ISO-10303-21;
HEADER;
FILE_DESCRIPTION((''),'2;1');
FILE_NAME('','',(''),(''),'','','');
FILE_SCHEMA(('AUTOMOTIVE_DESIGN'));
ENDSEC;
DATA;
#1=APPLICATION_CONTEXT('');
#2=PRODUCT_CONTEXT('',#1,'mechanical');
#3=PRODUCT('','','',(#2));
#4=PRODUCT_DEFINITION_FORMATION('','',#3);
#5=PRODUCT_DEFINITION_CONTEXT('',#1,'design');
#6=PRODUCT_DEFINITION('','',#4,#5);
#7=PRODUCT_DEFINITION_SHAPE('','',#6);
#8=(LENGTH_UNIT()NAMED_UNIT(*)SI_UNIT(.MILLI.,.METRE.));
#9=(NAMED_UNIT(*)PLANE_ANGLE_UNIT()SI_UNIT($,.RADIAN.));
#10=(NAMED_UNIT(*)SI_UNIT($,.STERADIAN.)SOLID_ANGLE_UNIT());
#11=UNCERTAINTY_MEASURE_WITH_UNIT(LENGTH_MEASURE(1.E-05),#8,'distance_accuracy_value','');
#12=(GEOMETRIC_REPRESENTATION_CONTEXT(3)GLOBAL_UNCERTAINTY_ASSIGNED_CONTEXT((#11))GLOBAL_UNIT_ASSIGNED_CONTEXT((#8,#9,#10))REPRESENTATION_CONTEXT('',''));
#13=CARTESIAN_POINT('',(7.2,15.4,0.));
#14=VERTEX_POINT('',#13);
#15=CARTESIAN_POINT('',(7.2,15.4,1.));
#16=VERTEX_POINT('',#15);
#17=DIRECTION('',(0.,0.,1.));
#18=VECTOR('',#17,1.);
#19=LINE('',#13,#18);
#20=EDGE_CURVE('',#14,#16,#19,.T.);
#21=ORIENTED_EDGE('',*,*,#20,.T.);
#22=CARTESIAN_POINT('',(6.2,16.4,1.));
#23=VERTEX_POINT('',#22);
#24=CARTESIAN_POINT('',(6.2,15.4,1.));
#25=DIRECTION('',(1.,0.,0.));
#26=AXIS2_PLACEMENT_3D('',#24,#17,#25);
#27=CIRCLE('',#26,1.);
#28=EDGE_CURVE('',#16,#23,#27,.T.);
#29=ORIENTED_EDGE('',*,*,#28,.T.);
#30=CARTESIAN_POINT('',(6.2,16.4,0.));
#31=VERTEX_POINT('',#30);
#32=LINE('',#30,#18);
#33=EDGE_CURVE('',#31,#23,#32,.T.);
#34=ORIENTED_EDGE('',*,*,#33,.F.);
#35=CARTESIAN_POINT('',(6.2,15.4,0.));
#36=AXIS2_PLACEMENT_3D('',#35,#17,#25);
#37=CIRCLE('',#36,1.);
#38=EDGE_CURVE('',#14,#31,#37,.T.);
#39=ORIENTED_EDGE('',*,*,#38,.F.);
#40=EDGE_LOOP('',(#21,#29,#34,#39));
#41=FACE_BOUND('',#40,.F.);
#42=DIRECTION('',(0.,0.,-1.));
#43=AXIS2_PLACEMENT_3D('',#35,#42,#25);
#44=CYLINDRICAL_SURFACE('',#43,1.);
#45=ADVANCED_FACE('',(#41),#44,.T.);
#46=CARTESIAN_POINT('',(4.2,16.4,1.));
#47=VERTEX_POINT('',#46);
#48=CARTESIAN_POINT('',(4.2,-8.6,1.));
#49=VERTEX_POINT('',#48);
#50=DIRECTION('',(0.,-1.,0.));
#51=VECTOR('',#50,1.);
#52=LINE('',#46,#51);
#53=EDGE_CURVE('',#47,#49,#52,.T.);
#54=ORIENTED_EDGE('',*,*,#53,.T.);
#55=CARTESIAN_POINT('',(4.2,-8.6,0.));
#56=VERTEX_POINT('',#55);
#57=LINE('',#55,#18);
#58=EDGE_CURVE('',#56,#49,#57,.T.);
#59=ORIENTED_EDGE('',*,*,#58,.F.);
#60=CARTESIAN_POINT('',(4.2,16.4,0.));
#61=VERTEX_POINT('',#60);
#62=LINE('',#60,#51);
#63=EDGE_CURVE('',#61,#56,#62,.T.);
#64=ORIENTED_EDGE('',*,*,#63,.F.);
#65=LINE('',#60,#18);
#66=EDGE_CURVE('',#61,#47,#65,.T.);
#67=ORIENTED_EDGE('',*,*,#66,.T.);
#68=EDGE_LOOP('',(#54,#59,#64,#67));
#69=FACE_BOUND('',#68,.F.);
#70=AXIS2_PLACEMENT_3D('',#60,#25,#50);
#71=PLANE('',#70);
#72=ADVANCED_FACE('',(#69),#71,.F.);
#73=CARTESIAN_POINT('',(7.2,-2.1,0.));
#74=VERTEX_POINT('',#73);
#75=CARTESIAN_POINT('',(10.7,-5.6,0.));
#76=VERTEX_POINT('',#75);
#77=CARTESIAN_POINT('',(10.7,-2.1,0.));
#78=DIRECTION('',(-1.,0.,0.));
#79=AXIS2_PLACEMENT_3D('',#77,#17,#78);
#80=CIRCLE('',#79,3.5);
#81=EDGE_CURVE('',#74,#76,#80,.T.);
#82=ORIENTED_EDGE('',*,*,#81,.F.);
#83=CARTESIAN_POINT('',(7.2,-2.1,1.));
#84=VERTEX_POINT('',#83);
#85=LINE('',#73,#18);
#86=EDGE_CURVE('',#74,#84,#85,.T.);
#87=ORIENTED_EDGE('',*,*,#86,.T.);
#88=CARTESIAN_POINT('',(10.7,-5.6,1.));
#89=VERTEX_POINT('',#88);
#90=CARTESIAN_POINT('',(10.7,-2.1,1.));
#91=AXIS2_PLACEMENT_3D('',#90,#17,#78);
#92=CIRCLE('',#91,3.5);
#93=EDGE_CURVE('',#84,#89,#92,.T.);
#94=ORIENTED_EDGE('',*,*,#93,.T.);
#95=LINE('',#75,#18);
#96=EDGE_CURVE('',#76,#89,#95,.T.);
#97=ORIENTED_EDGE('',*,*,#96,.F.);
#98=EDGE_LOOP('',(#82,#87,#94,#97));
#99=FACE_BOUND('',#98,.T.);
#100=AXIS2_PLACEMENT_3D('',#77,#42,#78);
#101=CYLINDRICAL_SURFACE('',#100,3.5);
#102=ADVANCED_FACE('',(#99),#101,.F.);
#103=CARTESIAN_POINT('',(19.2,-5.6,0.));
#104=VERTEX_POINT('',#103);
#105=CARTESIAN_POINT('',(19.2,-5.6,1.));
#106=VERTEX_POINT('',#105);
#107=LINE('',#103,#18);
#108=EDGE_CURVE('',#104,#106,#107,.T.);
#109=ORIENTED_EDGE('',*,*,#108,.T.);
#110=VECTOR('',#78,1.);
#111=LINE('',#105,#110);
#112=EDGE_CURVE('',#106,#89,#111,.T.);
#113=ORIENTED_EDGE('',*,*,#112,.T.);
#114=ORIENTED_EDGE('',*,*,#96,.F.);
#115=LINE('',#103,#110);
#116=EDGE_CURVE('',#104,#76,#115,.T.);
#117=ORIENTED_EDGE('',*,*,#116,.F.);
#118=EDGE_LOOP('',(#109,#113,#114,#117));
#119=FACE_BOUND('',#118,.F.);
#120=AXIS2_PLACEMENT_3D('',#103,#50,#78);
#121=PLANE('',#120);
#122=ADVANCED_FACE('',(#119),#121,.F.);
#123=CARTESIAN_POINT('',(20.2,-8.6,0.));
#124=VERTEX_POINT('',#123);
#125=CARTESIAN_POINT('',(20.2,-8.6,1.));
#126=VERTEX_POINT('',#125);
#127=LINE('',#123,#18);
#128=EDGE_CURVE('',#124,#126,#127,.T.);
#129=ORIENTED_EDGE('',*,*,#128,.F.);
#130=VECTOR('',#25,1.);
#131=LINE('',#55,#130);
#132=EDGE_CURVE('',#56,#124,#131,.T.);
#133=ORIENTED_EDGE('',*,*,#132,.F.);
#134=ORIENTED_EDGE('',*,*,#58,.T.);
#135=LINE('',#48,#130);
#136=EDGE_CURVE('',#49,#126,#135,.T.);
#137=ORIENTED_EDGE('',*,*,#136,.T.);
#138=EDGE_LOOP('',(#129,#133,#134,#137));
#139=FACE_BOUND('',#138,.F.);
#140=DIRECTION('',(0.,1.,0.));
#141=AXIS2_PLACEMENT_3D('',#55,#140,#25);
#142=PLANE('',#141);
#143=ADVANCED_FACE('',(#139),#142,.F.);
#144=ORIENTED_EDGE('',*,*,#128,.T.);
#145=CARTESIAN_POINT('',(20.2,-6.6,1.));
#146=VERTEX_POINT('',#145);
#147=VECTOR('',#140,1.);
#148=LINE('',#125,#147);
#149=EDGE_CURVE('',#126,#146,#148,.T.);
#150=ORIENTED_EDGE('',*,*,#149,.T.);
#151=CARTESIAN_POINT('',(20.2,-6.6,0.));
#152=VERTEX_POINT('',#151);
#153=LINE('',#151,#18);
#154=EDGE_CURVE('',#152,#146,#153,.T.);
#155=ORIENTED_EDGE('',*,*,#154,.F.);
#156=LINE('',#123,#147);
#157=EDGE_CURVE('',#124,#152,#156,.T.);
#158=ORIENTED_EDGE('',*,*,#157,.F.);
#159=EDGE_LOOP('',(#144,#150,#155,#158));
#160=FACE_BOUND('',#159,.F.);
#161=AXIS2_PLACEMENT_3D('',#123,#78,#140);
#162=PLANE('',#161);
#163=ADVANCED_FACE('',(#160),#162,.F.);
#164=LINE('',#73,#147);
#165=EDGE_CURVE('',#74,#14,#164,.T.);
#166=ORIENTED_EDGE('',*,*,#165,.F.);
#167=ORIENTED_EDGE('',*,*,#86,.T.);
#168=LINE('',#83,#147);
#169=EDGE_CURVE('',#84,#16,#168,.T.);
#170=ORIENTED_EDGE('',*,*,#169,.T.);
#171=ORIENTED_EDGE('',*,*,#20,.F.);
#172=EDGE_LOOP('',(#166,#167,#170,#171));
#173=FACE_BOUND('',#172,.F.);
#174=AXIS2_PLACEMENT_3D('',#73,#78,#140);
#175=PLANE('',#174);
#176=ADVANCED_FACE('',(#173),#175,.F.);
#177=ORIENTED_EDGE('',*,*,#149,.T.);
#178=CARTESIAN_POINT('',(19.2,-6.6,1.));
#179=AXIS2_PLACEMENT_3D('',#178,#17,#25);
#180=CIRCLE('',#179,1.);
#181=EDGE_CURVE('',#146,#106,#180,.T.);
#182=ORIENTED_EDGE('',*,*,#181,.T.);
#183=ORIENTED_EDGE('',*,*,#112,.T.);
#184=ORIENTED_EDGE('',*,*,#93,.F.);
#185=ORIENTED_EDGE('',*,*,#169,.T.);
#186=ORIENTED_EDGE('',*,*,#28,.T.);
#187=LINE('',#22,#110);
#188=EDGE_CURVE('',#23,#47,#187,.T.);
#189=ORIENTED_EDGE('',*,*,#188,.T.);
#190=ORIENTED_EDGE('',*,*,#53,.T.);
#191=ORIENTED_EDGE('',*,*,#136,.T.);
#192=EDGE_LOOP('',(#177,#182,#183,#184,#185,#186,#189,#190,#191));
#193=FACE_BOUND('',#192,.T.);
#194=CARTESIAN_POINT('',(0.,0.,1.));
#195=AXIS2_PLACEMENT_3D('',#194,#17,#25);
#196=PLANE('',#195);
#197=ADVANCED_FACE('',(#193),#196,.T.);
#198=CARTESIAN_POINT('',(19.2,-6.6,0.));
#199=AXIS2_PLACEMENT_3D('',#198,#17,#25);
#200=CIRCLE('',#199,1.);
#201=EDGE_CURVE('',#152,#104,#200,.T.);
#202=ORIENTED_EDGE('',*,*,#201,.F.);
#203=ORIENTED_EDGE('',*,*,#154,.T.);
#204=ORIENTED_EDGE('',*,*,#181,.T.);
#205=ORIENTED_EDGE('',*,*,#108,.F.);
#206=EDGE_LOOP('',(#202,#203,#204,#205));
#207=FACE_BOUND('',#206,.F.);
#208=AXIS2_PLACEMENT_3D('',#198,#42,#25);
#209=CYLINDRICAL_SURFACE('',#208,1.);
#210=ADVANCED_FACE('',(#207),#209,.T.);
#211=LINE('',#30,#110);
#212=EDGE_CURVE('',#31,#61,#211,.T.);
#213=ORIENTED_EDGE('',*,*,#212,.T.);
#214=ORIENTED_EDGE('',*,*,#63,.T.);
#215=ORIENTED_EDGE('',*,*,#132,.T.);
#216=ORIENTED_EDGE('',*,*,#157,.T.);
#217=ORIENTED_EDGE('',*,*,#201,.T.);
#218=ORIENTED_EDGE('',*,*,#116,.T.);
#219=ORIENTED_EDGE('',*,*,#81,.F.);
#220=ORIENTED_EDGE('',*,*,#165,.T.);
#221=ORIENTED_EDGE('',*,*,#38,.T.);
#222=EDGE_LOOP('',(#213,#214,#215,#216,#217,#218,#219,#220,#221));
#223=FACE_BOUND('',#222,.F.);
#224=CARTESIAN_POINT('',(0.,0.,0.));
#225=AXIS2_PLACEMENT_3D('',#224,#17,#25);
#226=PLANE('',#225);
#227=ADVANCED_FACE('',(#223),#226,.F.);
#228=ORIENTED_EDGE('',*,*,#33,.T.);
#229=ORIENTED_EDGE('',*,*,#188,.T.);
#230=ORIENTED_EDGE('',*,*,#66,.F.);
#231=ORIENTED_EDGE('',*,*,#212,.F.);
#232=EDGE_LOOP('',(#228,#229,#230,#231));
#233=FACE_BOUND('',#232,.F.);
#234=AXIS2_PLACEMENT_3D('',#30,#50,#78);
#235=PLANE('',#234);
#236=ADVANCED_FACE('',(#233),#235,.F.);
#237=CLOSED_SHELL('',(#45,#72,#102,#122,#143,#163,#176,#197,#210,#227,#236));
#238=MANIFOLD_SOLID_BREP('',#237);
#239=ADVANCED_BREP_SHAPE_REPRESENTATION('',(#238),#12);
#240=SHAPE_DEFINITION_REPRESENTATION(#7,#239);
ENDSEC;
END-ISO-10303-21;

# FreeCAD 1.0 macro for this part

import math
import FreeCAD as App
import Part
import Sketcher

doc = App.newDocument("Part")
body = doc.addObject("PartDesign::Body", "Body")

sketch1 = doc.addObject("Sketcher::SketchObject", "Sketch")
body.addObject(sketch1)
sketch1.AttachmentSupport = (doc.XY_Plane, [""])
sketch1.MapMode = "FlatFace"
sketch1.addGeometry([
    Part.LineSegment(App.Vector(6.2, 16.4, 0), App.Vector(4.2, 16.4, 0)),
    Part.LineSegment(App.Vector(4.2, 16.4, 0), App.Vector(4.2, -8.6, 0)),
    Part.LineSegment(App.Vector(4.2, -8.6, 0), App.Vector(20.2, -8.6, 0)),
    Part.LineSegment(App.Vector(20.2, -8.6, 0), App.Vector(20.2, -6.6, 0)),
    Part.ArcOfCircle(Part.Circle(App.Vector(19.2, -6.6, 0), App.Vector(0, 0, 1), 1), math.radians(0), math.radians(90)),
    Part.LineSegment(App.Vector(19.2, -5.6, 0), App.Vector(10.7, -5.6, 0)),
    Part.ArcOfCircle(Part.Circle(App.Vector(10.7, -2.1, 0), App.Vector(0, 0, 1), 3.5), math.radians(180), math.radians(270)),
    Part.LineSegment(App.Vector(7.2, -2.1, 0), App.Vector(7.2, 15.4, 0)),
    Part.ArcOfCircle(Part.Circle(App.Vector(6.2, 15.4, 0), App.Vector(0, 0, 1), 1), math.radians(0), math.radians(90)),
], False)
sketch1.addConstraint([
    Sketcher.Constraint("Coincident", 0, 2, 1, 1),
    Sketcher.Constraint("Coincident", 1, 2, 2, 1),
    Sketcher.Constraint("Coincident", 2, 2, 3, 1),
    Sketcher.Constraint("Tangent", 3, 2, 4, 1),
    Sketcher.Constraint("Tangent", 4, 2, 5, 1),
    Sketcher.Constraint("Tangent", 5, 2, 6, 2),
    Sketcher.Constraint("Tangent", 6, 1, 7, 1),
    Sketcher.Constraint("Tangent", 7, 2, 8, 1),
    Sketcher.Constraint("Tangent", 8, 2, 0, 1),
    Sketcher.Constraint("Horizontal", 0),
    Sketcher.Constraint("Vertical", 1),
    Sketcher.Constraint("Horizontal", 2),
    Sketcher.Constraint("Vertical", 3),
    Sketcher.Constraint("Horizontal", 5),
    Sketcher.Constraint("Vertical", 7),
    Sketcher.Constraint("Equal", 4, 8),
    Sketcher.Constraint("Equal", 0, 3),
    Sketcher.Constraint("Radius", 4, 1.0),
    Sketcher.Constraint("Radius", 6, 3.5),
    Sketcher.Constraint("DistanceX", 2, 1, 2, 2, 16.0),
    Sketcher.Constraint("DistanceY", 1, 2, 1, 1, 25.0),
    Sketcher.Constraint("DistanceY", 2, 2, 4, 2, 3.0),
    Sketcher.Constraint("DistanceX", -1, 1, 0, 2, 4.2),
    Sketcher.Constraint("DistanceY", 1, 2, -1, 1, 8.6),
])
pad1 = doc.addObject("PartDesign::Pad", "Pad")
body.addObject(pad1)
pad1.Profile = sketch1
pad1.Length = 1

doc.recompute()
